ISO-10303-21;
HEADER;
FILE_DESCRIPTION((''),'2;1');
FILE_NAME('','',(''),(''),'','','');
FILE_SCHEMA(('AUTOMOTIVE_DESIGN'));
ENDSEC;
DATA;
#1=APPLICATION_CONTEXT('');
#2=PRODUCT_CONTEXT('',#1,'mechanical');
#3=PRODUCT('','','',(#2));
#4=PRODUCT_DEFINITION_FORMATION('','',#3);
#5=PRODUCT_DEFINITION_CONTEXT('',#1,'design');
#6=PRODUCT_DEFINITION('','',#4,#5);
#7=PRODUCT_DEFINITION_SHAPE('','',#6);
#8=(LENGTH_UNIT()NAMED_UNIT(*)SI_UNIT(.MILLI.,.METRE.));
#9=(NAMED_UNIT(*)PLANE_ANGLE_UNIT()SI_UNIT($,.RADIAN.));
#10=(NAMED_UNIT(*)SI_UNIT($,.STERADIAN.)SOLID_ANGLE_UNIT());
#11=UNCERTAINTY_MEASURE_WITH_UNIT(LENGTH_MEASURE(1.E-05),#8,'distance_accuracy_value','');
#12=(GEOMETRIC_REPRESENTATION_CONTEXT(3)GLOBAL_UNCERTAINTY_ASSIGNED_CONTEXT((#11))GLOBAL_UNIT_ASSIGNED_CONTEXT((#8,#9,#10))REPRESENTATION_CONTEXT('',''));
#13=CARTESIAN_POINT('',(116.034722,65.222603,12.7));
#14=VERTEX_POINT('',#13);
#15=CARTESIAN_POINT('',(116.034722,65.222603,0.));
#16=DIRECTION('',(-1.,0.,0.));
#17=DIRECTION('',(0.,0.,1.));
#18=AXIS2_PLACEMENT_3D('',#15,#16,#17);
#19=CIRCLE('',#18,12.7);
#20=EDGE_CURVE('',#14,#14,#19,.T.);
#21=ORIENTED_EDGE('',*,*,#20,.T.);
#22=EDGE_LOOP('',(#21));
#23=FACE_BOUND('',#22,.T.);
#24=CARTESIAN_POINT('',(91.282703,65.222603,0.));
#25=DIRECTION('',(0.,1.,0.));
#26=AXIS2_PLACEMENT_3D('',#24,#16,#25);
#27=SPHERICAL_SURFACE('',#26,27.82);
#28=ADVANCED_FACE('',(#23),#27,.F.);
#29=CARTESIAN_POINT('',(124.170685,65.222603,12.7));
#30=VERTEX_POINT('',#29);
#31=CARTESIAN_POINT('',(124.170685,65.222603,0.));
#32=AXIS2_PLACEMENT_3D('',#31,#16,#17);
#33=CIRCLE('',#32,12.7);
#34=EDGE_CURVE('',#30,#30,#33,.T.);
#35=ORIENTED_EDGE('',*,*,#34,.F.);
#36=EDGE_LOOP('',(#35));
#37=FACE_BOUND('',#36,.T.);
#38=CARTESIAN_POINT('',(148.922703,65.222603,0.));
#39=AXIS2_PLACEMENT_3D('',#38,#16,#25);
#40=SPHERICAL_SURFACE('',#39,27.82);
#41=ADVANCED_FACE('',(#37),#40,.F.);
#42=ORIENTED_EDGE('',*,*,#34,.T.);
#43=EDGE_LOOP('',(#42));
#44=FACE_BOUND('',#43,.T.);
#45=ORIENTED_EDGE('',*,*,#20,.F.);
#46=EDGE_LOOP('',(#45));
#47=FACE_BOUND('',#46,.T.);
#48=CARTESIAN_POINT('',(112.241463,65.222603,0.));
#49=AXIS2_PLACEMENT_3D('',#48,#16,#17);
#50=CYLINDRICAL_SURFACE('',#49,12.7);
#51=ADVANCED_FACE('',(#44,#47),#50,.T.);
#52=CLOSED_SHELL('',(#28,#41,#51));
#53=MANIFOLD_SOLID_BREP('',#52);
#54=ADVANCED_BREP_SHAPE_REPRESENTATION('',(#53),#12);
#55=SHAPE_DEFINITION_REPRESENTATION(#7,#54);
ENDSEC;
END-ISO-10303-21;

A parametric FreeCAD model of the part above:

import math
import FreeCAD as App
import Part
import Sketcher
from FreeCAD import Vector
Q = App.Units.Quantity

doc = App.newDocument("Part")
body = doc.addObject("PartDesign::Body", "Body")

# Sketch on XY plane
sketch1 = doc.addObject("Sketcher::SketchObject", "Sketch")
body.addObject(sketch1)
sketch1.AttachmentSupport = (doc.XY_Plane, [""])
sketch1.MapMode = "FlatFace"
sketch1.addGeometry([
    Part.LineSegment(Vector(119.1, 65.2, 0), Vector(121.1, 65.2, 0)),
    Part.ArcOfCircle(Part.Circle(Vector(148.9, 65.2, 0), Vector(0, 0, 1), 27.8), math.radians(153), math.radians(180)),
    Part.LineSegment(Vector(124.2, 77.9, 0), Vector(116, 77.9, 0)),
    Part.ArcOfCircle(Part.Circle(Vector(91.3, 65.2, 0), Vector(0, 0, 1), 27.8), math.radians(0), math.radians(27)),
], False)
sketch1.addGeometry(Part.LineSegment(Vector(91.3, 65.2, 0), Vector(148.9, 65.2, 0)), True)  # axis
sketch1.addConstraint([
    Sketcher.Constraint("Coincident", 0, 2, 1, 2),
    Sketcher.Constraint("Coincident", 1, 1, 2, 1),
    Sketcher.Constraint("Coincident", 2, 2, 3, 2),
    Sketcher.Constraint("Coincident", 3, 1, 0, 1),
    Sketcher.Constraint("Horizontal", 0),
    Sketcher.Constraint("Horizontal", 2),
    Sketcher.Constraint("Horizontal", 4),
    Sketcher.Constraint("Coincident", 4, 1, 3, 3),
    Sketcher.Constraint("Coincident", 4, 2, 1, 3),
    Sketcher.Constraint("Equal", 1, 3),
    Sketcher.Constraint("Horizontal", 3, 3, 0, 2),
    Sketcher.Constraint("DistanceX", 0, 1, 0, 2, Q("2 mm")),
    Sketcher.Constraint("Radius", 1, Q("27.82 mm")),
    Sketcher.Constraint("DistanceY", 0, 2, 1, 1, Q("12.7 mm")),
    Sketcher.Constraint("DistanceX", -1, 1, 2, 2, Q("116.034722 mm")),
    Sketcher.Constraint("DistanceY", -1, 1, 1, 3, Q("65.222603 mm")),
])
revolution = doc.addObject("PartDesign::Revolution", "Revolution")
body.addObject(revolution)
revolution.Profile = sketch1
revolution.ReferenceAxis = (sketch1, ["Axis0"])
revolution.Angle = 360

doc.recompute()
